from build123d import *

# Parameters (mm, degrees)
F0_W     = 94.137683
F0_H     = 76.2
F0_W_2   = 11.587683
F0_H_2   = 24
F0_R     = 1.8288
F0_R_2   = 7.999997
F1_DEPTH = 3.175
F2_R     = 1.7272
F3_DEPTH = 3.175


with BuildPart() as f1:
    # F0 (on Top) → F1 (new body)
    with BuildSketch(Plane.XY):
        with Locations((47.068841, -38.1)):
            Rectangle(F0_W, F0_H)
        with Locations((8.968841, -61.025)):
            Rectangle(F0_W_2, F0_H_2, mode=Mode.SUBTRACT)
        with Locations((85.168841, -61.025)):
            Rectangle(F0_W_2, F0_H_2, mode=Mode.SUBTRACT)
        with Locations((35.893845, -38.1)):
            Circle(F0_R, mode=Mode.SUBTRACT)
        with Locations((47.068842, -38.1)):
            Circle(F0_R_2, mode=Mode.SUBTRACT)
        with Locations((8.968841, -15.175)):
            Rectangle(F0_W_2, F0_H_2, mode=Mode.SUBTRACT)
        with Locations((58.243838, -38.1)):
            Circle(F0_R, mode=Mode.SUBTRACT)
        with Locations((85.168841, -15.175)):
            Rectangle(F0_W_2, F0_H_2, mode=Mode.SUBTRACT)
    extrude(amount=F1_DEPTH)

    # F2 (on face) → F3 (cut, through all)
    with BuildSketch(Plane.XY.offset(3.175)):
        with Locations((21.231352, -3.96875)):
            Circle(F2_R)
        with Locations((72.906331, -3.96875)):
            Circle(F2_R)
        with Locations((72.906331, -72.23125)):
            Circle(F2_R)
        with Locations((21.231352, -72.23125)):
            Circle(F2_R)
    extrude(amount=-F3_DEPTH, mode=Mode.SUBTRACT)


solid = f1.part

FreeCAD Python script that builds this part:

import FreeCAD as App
import Part
import Sketcher

V = App.Vector
Q = App.Units.Quantity


def add_polygon(sketch, points):
    """Adds a closed chain of lines whose ends are joined by coincident constraints."""
    first, n = sketch.GeometryCount, len(points)
    for a, b in zip(points, points[1:] + points[:1]):
        sketch.addGeometry(Part.LineSegment(App.Vector(*a, 0), App.Vector(*b, 0)), False)
    for i in range(n):
        sketch.addConstraint(Sketcher.Constraint("Coincident", first + i, 2, first + (i + 1) % n, 1))

doc = App.newDocument("Part")
body = doc.addObject("PartDesign::Body", "Body")

# Sketch on XY plane
sketch1 = body.newObject("Sketcher::SketchObject", "Sketch")
sketch1.AttachmentSupport = (doc.getObject("XY_Plane"), [""])
sketch1.MapMode = "FlatFace"
add_polygon(sketch1, [(0, 0), (0, -76.2), (94.1, -76.2), (94.1, 0)])  # lines 0-3
add_polygon(sketch1, [(14.8, -73), (3.2, -73), (3.2, -49), (14.8, -49)])  # lines 4-7
add_polygon(sketch1, [(91, -73), (79.4, -73), (79.4, -49), (91, -49)])  # lines 8-11
sketch1.addGeometry(Part.Circle(V(35.9, -38.1, 0), V(0, 0, 1), 1.8), False)  # 12
add_polygon(sketch1, [(14.8, -27.2), (3.2, -27.2), (3.2, -3.2), (14.8, -3.2)])  # lines 13-16
sketch1.addGeometry(Part.Circle(V(47.1, -38.1, 0), V(0, 0, 1), 8), False)  # 17
sketch1.addGeometry(Part.Circle(V(58.2, -38.1, 0), V(0, 0, 1), 1.8), False)  # 18
add_polygon(sketch1, [(91, -27.2), (79.4, -27.2), (79.4, -3.2), (91, -3.2)])  # lines 19-22
sketch1.addConstraint(Sketcher.Constraint("Vertical", 0))
sketch1.addConstraint(Sketcher.Constraint("Horizontal", 1))
sketch1.addConstraint(Sketcher.Constraint("Vertical", 2))
sketch1.addConstraint(Sketcher.Constraint("Horizontal", 3))
sketch1.addConstraint(Sketcher.Constraint("Horizontal", 4))
sketch1.addConstraint(Sketcher.Constraint("Vertical", 5))
sketch1.addConstraint(Sketcher.Constraint("Horizontal", 6))
sketch1.addConstraint(Sketcher.Constraint("Vertical", 7))
sketch1.addConstraint(Sketcher.Constraint("Horizontal", 8))
sketch1.addConstraint(Sketcher.Constraint("Vertical", 9))
sketch1.addConstraint(Sketcher.Constraint("Horizontal", 10))
sketch1.addConstraint(Sketcher.Constraint("Vertical", 11))
sketch1.addConstraint(Sketcher.Constraint("Horizontal", 13))
sketch1.addConstraint(Sketcher.Constraint("Vertical", 14))
sketch1.addConstraint(Sketcher.Constraint("Horizontal", 15))
sketch1.addConstraint(Sketcher.Constraint("Vertical", 16))
sketch1.addConstraint(Sketcher.Constraint("Horizontal", 19))
sketch1.addConstraint(Sketcher.Constraint("Vertical", 20))
sketch1.addConstraint(Sketcher.Constraint("Horizontal", 21))
sketch1.addConstraint(Sketcher.Constraint("Vertical", 22))
sketch1.addConstraint(Sketcher.Constraint("Coincident", 3, 2, -1, 1))
sketch1.addConstraint(Sketcher.Constraint("Equal", 12, 18))
sketch1.addConstraint(Sketcher.Constraint("Horizontal", 12, 3, 17, 3))
sketch1.addConstraint(Sketcher.Constraint("Horizontal", 17, 3, 18, 3))
sketch1.addConstraint(Sketcher.Constraint("Horizontal", 7, 2, 8, 2))
sketch1.addConstraint(Sketcher.Constraint("Horizontal", 6, 2, 9, 2))
sketch1.addConstraint(Sketcher.Constraint("Horizontal", 16, 2, 19, 2))
sketch1.addConstraint(Sketcher.Constraint("Horizontal", 15, 2, 20, 2))
sketch1.addConstraint(Sketcher.Constraint("Vertical", 5, 2, 13, 2))
sketch1.addConstraint(Sketcher.Constraint("Vertical", 7, 2, 15, 2))
sketch1.addConstraint(Sketcher.Constraint("Vertical", 9, 2, 19, 2))
sketch1.addConstraint(Sketcher.Constraint("Vertical", 11, 2, 21, 2))
sketch1.addConstraint(Sketcher.Constraint("Equal", 6, 8))
sketch1.addConstraint(Sketcher.Constraint("Equal", 11, 14))
sketch1.addConstraint(Sketcher.Constraint("DistanceY", 0, 2, 0, 1, Q("3 in")))
sketch1.addConstraint(Sketcher.Constraint("Diameter", 12, Q("0.144 in")))
sketch1.addConstraint(Sketcher.Constraint("DistanceY", 12, 3, -1, 1, Q("1.5 in")))
sketch1.addConstraint(Sketcher.Constraint("DistanceX", -1, 1, 4, 2, Q("0.125 in")))
sketch1.addConstraint(Sketcher.Constraint("DistanceY", 4, 2, -1, 1, Q("2.875 in")))
sketch1.addConstraint(Sketcher.Constraint("DistanceX", -1, 1, 8, 2, Q("3.125 in")))
sketch1.addConstraint(Sketcher.Constraint("DistanceY", 14, 2, -1, 1, Q("0.125 in")))
sketch1.addConstraint(Sketcher.Constraint("DistanceX", 10, 2, 1, 2, Q("0.125 in")))
sketch1.addConstraint(Sketcher.Constraint("Diameter", 17, Q("15.999994 mm")))
sketch1.addConstraint(Sketcher.Constraint("DistanceY", 5, 1, 5, 2, Q("24 mm")))
sketch1.addConstraint(Sketcher.Constraint("DistanceX", 1, 1, 1, 2, Q("94.137683 mm")))
sketch1.addConstraint(Sketcher.Constraint("DistanceX", -1, 1, 17, 3, Q("47.068842 mm")))
sketch1.addConstraint(Sketcher.Constraint("DistanceX", 0, 2, 18, 3, Q("58.243838 mm")))
sketch1.addConstraint(Sketcher.Constraint("DistanceX", -1, 1, 12, 3, Q("35.893845 mm")))
pad1 = body.newObject("PartDesign::Pad", "Pad")
pad1.Profile = sketch1
pad1.Length = Q("0.125 in")

# Sketch on XY plane
sketch2 = body.newObject("Sketcher::SketchObject", "Sketch001")
sketch2.AttachmentSupport = (doc.getObject("XY_Plane"), [""])
sketch2.MapMode = "FlatFace"
sketch2.AttachmentOffset = App.Placement(V(0, 0, 0.125 * 25.4), App.Rotation())
sketch2.addGeometry(Part.Circle(V(21.2, -4, 0), V(0, 0, 1), 1.7), False)
sketch2.addGeometry(Part.Circle(V(72.9, -4, 0), V(0, 0, 1), 1.7), False)
sketch2.addGeometry(Part.Circle(V(72.9, -72.2, 0), V(0, 0, 1), 1.7), False)
sketch2.addGeometry(Part.Circle(V(21.2, -72.2, 0), V(0, 0, 1), 1.7), False)
sketch2.addConstraint(Sketcher.Constraint("Equal", 0, 1))
sketch2.addConstraint(Sketcher.Constraint("Equal", 1, 2))
sketch2.addConstraint(Sketcher.Constraint("Equal", 2, 3))
sketch2.addConstraint(Sketcher.Constraint("Horizontal", 0, 3, 1, 3))
sketch2.addConstraint(Sketcher.Constraint("Horizontal", 2, 3, 3, 3))
sketch2.addConstraint(Sketcher.Constraint("Vertical", 1, 3, 2, 3))
sketch2.addConstraint(Sketcher.Constraint("Vertical", 0, 3, 3, 3))
sketch2.addConstraint(Sketcher.Constraint("Diameter", 0, Q("0.136 in")))
sketch2.addConstraint(Sketcher.Constraint("DistanceY", 0, 3, -1, 1, Q("0.15625 in")))
sketch2.addConstraint(Sketcher.Constraint("DistanceY", 2, 3, -1, 1, Q("2.84375 in")))
sketch2.addConstraint(Sketcher.Constraint("DistanceX", -1, 1, 1, 3, Q("72.906331 mm")))
sketch2.addConstraint(Sketcher.Constraint("DistanceX", 0, 3, 1, 3, Q("51.674979 mm")))
pocket1 = body.newObject("PartDesign::Pocket", "Pocket")
pocket1.Profile = sketch2
pocket1.Type = "ThroughAll"

doc.recompute()
